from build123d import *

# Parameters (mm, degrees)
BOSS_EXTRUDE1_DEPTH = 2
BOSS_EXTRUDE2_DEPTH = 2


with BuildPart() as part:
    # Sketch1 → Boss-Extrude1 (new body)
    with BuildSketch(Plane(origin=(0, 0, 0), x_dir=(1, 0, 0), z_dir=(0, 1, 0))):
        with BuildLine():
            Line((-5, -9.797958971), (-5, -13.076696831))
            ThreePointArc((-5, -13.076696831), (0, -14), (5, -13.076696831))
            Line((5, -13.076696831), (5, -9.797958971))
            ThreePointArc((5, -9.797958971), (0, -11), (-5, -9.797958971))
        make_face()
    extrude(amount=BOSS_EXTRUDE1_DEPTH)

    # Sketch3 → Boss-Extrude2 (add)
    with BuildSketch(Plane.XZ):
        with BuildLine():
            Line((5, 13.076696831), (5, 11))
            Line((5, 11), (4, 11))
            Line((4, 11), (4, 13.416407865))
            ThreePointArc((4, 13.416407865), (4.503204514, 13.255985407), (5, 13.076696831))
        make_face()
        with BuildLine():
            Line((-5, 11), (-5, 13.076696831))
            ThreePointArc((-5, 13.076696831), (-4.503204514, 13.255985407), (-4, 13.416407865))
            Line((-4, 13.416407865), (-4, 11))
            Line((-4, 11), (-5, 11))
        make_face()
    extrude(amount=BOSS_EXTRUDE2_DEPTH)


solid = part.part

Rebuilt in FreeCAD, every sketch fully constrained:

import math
import FreeCAD as App
import Part
import Sketcher
from FreeCAD import Vector

doc = App.newDocument("Part")
body = doc.addObject("PartDesign::Body", "Body")

# Sketch on XZ plane
sketch1 = body.newObject("Sketcher::SketchObject", "Sketch")
sketch1.AttachmentSupport = (doc.getObject("XZ_Plane"), [""])
sketch1.MapMode = "FlatFace"
sketch1.addGeometry([
    Part.LineSegment(Vector(-5, 9.8, 0), Vector(-5, 13.1, 0)),
    Part.ArcOfCircle(Part.Circle(Vector(0, 0, 0), Vector(0, 0, 1), 14), math.radians(69), math.radians(111)),
    Part.LineSegment(Vector(5, 13.1, 0), Vector(5, 9.8, 0)),
    Part.ArcOfCircle(Part.Circle(Vector(0, 0, 0), Vector(0, 0, 1), 11), math.radians(63), math.radians(117)),
], False)
sketch1.addConstraint([
    Sketcher.Constraint("Coincident", 0, 2, 1, 2),
    Sketcher.Constraint("Coincident", 1, 1, 2, 1),
    Sketcher.Constraint("Coincident", 2, 2, 3, 1),
    Sketcher.Constraint("Coincident", 3, 2, 0, 1),
    Sketcher.Constraint("Vertical", 0),
    Sketcher.Constraint("Vertical", 2),
    Sketcher.Constraint("Coincident", 1, 3, -1, 1),
    Sketcher.Constraint("Coincident", 3, 3, -1, 1),
    Sketcher.Constraint("Horizontal", 0, 2, 1, 1),
    Sketcher.Constraint("Radius", 1, 14.0),
    Sketcher.Constraint("Radius", 3, 11.0),
    Sketcher.Constraint("DistanceX", 0, 2, -1, 1, 5.0),
])
pad1 = body.newObject("PartDesign::Pad", "Pad")
pad1.Profile = sketch1
pad1.Length = 2
pad1.Reversed = True

# Sketch on XZ plane
sketch2 = body.newObject("Sketcher::SketchObject", "Sketch001")
sketch2.AttachmentSupport = (doc.getObject("XZ_Plane"), [""])
sketch2.MapMode = "FlatFace"
sketch2.addGeometry([
    Part.LineSegment(Vector(5, 11, 0), Vector(5, 13.1, 0)),  # 0
    Part.ArcOfCircle(Part.Circle(Vector(0, 0, 0), Vector(0, 0, 1), 14), math.radians(69.08), math.radians(73.4)),  # 1
    Part.LineSegment(Vector(4, 13.4, 0), Vector(4, 11, 0)),  # 2
    Part.LineSegment(Vector(4, 11, 0), Vector(5, 11, 0)),  # 3
    Part.LineSegment(Vector(-5, 13.1, 0), Vector(-5, 11, 0)),  # 4
    Part.LineSegment(Vector(-5, 11, 0), Vector(-4, 11, 0)),  # 5
    Part.LineSegment(Vector(-4, 11, 0), Vector(-4, 13.4, 0)),  # 6
    Part.ArcOfCircle(Part.Circle(Vector(0, 0, 0), Vector(0, 0, 1), 14), math.radians(106.6), math.radians(110.92)),  # 7
], False)
sketch2.addConstraint([
    Sketcher.Constraint("Coincident", 0, 2, 1, 1),
    Sketcher.Constraint("Coincident", 1, 2, 2, 1),
    Sketcher.Constraint("Coincident", 2, 2, 3, 1),
    Sketcher.Constraint("Coincident", 3, 2, 0, 1),
    Sketcher.Constraint("Coincident", 4, 2, 5, 1),
    Sketcher.Constraint("Coincident", 5, 2, 6, 1),
    Sketcher.Constraint("Coincident", 6, 2, 7, 1),
    Sketcher.Constraint("Coincident", 7, 2, 4, 1),
    Sketcher.Constraint("Vertical", 0),
    Sketcher.Constraint("Vertical", 2),
    Sketcher.Constraint("Horizontal", 3),
    Sketcher.Constraint("Vertical", 4),
    Sketcher.Constraint("Horizontal", 5),
    Sketcher.Constraint("Vertical", 6),
    Sketcher.Constraint("Coincident", 1, 3, -1, 1),
    Sketcher.Constraint("Coincident", 7, 3, -1, 1),
    Sketcher.Constraint("Equal", 1, 7),
    Sketcher.Constraint("Symmetric", 3, 2, 4, 2, -2),
    Sketcher.Constraint("Horizontal", 1, 2, 6, 2),
    Sketcher.Constraint("Radius", 1, 14.0),
    Sketcher.Constraint("DistanceX", 3, 1, 3, 2, 1.0),
    Sketcher.Constraint("DistanceX", -1, 1, 0, 2, 5.0),
    Sketcher.Constraint("DistanceY", -1, 1, 2, 2, 11.0),
])
pad2 = body.newObject("PartDesign::Pad", "Pad001")
pad2.Profile = sketch2
pad2.Length = 2

doc.recompute()
